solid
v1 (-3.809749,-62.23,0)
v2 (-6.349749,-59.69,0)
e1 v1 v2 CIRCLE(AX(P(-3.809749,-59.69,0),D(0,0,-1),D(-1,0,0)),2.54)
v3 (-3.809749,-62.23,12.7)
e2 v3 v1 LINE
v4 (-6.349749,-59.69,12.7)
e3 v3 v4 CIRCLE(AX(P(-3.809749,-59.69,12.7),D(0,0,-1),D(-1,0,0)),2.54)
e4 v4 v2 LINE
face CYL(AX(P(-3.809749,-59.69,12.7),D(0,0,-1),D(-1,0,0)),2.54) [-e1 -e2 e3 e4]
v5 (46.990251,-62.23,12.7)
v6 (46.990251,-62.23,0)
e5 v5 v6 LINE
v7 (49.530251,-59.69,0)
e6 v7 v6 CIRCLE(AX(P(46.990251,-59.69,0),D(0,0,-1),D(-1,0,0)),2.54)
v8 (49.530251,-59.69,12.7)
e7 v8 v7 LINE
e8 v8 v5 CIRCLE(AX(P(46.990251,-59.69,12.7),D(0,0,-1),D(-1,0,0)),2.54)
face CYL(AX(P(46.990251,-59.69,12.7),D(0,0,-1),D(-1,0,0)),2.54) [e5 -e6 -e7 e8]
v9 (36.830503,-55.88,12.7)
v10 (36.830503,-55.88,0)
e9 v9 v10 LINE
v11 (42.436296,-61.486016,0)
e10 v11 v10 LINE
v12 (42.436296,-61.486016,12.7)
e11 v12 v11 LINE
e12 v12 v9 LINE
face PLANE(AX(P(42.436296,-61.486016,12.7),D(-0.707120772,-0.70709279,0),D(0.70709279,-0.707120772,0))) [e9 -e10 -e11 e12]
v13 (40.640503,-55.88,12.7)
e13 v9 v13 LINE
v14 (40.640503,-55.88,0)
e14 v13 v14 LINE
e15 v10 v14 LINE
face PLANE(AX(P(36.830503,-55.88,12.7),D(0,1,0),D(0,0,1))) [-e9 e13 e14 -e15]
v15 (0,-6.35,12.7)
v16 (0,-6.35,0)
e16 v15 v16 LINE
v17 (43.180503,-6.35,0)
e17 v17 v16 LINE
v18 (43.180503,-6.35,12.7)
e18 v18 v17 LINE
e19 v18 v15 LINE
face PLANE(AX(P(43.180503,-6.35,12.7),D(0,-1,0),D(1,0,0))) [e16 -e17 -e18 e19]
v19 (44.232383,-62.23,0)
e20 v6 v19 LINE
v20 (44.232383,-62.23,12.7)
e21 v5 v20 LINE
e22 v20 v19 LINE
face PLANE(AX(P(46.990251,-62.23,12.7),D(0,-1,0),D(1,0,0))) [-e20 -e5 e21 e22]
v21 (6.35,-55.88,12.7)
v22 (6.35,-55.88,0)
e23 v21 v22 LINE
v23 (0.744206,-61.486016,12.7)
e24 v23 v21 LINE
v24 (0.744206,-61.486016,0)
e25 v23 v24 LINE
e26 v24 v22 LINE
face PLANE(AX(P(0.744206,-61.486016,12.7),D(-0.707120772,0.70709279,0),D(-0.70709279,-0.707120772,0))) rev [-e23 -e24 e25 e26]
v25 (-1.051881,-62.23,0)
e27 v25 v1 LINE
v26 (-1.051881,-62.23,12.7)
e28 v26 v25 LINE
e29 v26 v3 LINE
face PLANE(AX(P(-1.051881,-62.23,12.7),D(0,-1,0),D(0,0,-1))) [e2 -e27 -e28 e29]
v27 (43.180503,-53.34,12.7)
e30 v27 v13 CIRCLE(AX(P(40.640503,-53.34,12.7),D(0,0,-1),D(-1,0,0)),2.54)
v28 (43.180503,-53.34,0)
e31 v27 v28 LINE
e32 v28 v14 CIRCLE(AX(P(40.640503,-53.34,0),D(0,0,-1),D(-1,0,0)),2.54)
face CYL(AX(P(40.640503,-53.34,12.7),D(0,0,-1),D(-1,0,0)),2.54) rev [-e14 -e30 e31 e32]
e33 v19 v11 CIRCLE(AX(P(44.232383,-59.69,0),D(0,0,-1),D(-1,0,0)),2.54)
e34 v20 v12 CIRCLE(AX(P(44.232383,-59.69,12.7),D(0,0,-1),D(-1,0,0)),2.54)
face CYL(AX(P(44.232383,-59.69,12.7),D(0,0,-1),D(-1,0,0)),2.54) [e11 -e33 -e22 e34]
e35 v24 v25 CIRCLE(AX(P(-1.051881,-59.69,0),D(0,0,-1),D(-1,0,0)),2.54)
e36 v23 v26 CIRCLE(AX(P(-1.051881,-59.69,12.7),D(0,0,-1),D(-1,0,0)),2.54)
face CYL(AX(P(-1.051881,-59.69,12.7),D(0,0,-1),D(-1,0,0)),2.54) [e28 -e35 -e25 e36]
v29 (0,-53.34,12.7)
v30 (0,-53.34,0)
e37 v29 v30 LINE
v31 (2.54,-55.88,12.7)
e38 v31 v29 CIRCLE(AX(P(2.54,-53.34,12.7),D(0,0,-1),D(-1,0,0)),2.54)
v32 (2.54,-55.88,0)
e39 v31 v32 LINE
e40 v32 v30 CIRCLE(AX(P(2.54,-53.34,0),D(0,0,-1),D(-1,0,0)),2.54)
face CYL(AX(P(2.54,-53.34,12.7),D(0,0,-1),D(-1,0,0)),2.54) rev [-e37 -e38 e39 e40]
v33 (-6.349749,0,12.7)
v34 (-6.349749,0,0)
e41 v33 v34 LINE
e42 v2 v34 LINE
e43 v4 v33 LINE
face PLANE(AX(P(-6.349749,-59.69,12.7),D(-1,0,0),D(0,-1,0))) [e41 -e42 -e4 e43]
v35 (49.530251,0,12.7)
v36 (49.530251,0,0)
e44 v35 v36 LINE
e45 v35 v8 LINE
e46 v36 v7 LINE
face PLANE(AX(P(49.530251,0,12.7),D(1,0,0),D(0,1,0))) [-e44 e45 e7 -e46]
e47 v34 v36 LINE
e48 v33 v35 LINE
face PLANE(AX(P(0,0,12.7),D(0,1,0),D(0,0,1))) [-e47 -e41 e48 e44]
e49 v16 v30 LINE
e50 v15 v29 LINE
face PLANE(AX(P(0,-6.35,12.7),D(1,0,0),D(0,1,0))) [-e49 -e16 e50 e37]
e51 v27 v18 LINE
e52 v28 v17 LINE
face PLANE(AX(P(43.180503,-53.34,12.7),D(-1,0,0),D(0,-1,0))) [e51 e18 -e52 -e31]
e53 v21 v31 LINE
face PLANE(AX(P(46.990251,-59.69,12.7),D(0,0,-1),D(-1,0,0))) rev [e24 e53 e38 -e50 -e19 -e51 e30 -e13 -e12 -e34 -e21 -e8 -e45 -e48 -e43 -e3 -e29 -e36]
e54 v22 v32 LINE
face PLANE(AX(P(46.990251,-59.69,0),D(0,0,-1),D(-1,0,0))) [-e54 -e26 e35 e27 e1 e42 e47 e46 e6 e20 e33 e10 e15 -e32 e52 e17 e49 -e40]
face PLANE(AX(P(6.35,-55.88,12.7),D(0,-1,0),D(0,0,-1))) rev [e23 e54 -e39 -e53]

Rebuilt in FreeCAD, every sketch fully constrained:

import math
import FreeCAD as App
import Part
import Sketcher
Q = App.Units.Quantity

doc = App.newDocument("Part")
body = doc.addObject("PartDesign::Body", "Body")

# Sketch on XY plane
sketch1 = body.newObject("Sketcher::SketchObject", "Sketch")
sketch1.AttachmentSupport = (doc.getObject("XY_Plane"), [""])
sketch1.MapMode = "FlatFace"
sketch1.addGeometry([
    Part.LineSegment(App.Vector(49.5, -59.7, 0), App.Vector(49.5, 0, 0)),  # 0
    Part.LineSegment(App.Vector(49.5, 0, 0), App.Vector(-6.3, 0, 0)),  # 1
    Part.LineSegment(App.Vector(-6.3, 0, 0), App.Vector(-6.3, -59.7, 0)),  # 2
    Part.ArcOfCircle(Part.Circle(App.Vector(-3.8, -59.7, 0), App.Vector(0, 0, 1), 2.5), math.radians(180), math.radians(270)),  # 3
    Part.LineSegment(App.Vector(-3.8, -62.2, 0), App.Vector(-1.1, -62.2, 0)),  # 4
    Part.ArcOfCircle(Part.Circle(App.Vector(-1.1, -59.7, 0), App.Vector(0, 0, 1), 2.5), math.radians(-90), math.radians(-45)),  # 5
    Part.LineSegment(App.Vector(0.7, -61.5, 0), App.Vector(6.3, -55.9, 0)),  # 6
    Part.LineSegment(App.Vector(6.3, -55.9, 0), App.Vector(2.5, -55.9, 0)),  # 7
    Part.ArcOfCircle(Part.Circle(App.Vector(2.5, -53.3, 0), App.Vector(0, 0, 1), 2.5), math.radians(180), math.radians(270)),  # 8
    Part.LineSegment(App.Vector(0, -53.3, 0), App.Vector(0, -6.3, 0)),  # 9
    Part.LineSegment(App.Vector(0, -6.3, 0), App.Vector(43.2, -6.3, 0)),  # 10
    Part.LineSegment(App.Vector(43.2, -6.3, 0), App.Vector(43.2, -53.3, 0)),  # 11
    Part.ArcOfCircle(Part.Circle(App.Vector(40.6, -53.3, 0), App.Vector(0, 0, 1), 2.5), math.radians(-90), math.radians(0)),  # 12
    Part.LineSegment(App.Vector(40.6, -55.9, 0), App.Vector(36.8, -55.9, 0)),  # 13
    Part.LineSegment(App.Vector(36.8, -55.9, 0), App.Vector(42.4, -61.5, 0)),  # 14
    Part.ArcOfCircle(Part.Circle(App.Vector(44.2, -59.7, 0), App.Vector(0, 0, 1), 2.5), math.radians(-135), math.radians(-90)),  # 15
    Part.LineSegment(App.Vector(44.2, -62.2, 0), App.Vector(47, -62.2, 0)),  # 16
    Part.ArcOfCircle(Part.Circle(App.Vector(47, -59.7, 0), App.Vector(0, 0, 1), 2.5), math.radians(-90), math.radians(0)),  # 17
], False)
sketch1.addConstraint([
    Sketcher.Constraint("Coincident", 0, 2, 1, 1),
    Sketcher.Constraint("Coincident", 1, 2, 2, 1),
    Sketcher.Constraint("Tangent", 2, 2, 3, 1),
    Sketcher.Constraint("Tangent", 3, 2, 4, 1),
    Sketcher.Constraint("Tangent", 4, 2, 5, 1),
    Sketcher.Constraint("Tangent", 5, 2, 6, 1),
    Sketcher.Constraint("Coincident", 6, 2, 7, 1),
    Sketcher.Constraint("Tangent", 7, 2, 8, 2),
    Sketcher.Constraint("Tangent", 8, 1, 9, 1),
    Sketcher.Constraint("Coincident", 9, 2, 10, 1),
    Sketcher.Constraint("Coincident", 10, 2, 11, 1),
    Sketcher.Constraint("Tangent", 11, 2, 12, 2),
    Sketcher.Constraint("Tangent", 12, 1, 13, 1),
    Sketcher.Constraint("Coincident", 13, 2, 14, 1),
    Sketcher.Constraint("Tangent", 14, 2, 15, 1),
    Sketcher.Constraint("Tangent", 15, 2, 16, 1),
    Sketcher.Constraint("Tangent", 16, 2, 17, 1),
    Sketcher.Constraint("Tangent", 17, 2, 0, 1),
    Sketcher.Constraint("Vertical", 0),
    Sketcher.Constraint("Horizontal", 1),
    Sketcher.Constraint("Vertical", 2),
    Sketcher.Constraint("Horizontal", 4),
    Sketcher.Constraint("Horizontal", 7),
    Sketcher.Constraint("Vertical", 9),
    Sketcher.Constraint("Horizontal", 10),
    Sketcher.Constraint("Vertical", 11),
    Sketcher.Constraint("Horizontal", 13),
    Sketcher.Constraint("Horizontal", 16),
    Sketcher.Constraint("Equal", 3, 5),
    Sketcher.Constraint("Equal", 5, 8),
    Sketcher.Constraint("Equal", 8, 12),
    Sketcher.Constraint("Equal", 12, 15),
    Sketcher.Constraint("Equal", 15, 17),
    Sketcher.Constraint("PointOnObject", 0, 2, -1),
    Sketcher.Constraint("PointOnObject", 8, 1, -2),
    Sketcher.Constraint("Horizontal", 8, 3, 12, 3),
    Sketcher.Constraint("Horizontal", 5, 3, 15, 3),
    Sketcher.Constraint("Horizontal", 5, 2, 14, 2),
    Sketcher.Constraint("Equal", 7, 13),
    Sketcher.Constraint("Equal", 4, 16),
    Sketcher.Constraint("Radius", 3, Q("0.1 in")),
    Sketcher.Constraint("DistanceX", 1, 2, 1, 1, Q("2.2 in")),
    Sketcher.Constraint("DistanceX", 7, 2, 7, 1, Q("0.15 in")),
    Sketcher.Constraint("DistanceY", 0, 1, 0, 2, Q("2.35 in")),
    Sketcher.Constraint("DistanceY", 9, 1, 9, 2, Q("1.85 in")),
    Sketcher.Constraint("DistanceY", 8, 3, -1, 1, Q("2.1 in")),
    Sketcher.Constraint("DistanceX", 4, 1, 4, 2, 2.757868),
    Sketcher.Constraint("DistanceX", 10, 1, 10, 2, 43.180503),
])
pad1 = body.newObject("PartDesign::Pad", "Pad")
pad1.Profile = sketch1
pad1.Length = Q("0.5 in")

doc.recompute()
